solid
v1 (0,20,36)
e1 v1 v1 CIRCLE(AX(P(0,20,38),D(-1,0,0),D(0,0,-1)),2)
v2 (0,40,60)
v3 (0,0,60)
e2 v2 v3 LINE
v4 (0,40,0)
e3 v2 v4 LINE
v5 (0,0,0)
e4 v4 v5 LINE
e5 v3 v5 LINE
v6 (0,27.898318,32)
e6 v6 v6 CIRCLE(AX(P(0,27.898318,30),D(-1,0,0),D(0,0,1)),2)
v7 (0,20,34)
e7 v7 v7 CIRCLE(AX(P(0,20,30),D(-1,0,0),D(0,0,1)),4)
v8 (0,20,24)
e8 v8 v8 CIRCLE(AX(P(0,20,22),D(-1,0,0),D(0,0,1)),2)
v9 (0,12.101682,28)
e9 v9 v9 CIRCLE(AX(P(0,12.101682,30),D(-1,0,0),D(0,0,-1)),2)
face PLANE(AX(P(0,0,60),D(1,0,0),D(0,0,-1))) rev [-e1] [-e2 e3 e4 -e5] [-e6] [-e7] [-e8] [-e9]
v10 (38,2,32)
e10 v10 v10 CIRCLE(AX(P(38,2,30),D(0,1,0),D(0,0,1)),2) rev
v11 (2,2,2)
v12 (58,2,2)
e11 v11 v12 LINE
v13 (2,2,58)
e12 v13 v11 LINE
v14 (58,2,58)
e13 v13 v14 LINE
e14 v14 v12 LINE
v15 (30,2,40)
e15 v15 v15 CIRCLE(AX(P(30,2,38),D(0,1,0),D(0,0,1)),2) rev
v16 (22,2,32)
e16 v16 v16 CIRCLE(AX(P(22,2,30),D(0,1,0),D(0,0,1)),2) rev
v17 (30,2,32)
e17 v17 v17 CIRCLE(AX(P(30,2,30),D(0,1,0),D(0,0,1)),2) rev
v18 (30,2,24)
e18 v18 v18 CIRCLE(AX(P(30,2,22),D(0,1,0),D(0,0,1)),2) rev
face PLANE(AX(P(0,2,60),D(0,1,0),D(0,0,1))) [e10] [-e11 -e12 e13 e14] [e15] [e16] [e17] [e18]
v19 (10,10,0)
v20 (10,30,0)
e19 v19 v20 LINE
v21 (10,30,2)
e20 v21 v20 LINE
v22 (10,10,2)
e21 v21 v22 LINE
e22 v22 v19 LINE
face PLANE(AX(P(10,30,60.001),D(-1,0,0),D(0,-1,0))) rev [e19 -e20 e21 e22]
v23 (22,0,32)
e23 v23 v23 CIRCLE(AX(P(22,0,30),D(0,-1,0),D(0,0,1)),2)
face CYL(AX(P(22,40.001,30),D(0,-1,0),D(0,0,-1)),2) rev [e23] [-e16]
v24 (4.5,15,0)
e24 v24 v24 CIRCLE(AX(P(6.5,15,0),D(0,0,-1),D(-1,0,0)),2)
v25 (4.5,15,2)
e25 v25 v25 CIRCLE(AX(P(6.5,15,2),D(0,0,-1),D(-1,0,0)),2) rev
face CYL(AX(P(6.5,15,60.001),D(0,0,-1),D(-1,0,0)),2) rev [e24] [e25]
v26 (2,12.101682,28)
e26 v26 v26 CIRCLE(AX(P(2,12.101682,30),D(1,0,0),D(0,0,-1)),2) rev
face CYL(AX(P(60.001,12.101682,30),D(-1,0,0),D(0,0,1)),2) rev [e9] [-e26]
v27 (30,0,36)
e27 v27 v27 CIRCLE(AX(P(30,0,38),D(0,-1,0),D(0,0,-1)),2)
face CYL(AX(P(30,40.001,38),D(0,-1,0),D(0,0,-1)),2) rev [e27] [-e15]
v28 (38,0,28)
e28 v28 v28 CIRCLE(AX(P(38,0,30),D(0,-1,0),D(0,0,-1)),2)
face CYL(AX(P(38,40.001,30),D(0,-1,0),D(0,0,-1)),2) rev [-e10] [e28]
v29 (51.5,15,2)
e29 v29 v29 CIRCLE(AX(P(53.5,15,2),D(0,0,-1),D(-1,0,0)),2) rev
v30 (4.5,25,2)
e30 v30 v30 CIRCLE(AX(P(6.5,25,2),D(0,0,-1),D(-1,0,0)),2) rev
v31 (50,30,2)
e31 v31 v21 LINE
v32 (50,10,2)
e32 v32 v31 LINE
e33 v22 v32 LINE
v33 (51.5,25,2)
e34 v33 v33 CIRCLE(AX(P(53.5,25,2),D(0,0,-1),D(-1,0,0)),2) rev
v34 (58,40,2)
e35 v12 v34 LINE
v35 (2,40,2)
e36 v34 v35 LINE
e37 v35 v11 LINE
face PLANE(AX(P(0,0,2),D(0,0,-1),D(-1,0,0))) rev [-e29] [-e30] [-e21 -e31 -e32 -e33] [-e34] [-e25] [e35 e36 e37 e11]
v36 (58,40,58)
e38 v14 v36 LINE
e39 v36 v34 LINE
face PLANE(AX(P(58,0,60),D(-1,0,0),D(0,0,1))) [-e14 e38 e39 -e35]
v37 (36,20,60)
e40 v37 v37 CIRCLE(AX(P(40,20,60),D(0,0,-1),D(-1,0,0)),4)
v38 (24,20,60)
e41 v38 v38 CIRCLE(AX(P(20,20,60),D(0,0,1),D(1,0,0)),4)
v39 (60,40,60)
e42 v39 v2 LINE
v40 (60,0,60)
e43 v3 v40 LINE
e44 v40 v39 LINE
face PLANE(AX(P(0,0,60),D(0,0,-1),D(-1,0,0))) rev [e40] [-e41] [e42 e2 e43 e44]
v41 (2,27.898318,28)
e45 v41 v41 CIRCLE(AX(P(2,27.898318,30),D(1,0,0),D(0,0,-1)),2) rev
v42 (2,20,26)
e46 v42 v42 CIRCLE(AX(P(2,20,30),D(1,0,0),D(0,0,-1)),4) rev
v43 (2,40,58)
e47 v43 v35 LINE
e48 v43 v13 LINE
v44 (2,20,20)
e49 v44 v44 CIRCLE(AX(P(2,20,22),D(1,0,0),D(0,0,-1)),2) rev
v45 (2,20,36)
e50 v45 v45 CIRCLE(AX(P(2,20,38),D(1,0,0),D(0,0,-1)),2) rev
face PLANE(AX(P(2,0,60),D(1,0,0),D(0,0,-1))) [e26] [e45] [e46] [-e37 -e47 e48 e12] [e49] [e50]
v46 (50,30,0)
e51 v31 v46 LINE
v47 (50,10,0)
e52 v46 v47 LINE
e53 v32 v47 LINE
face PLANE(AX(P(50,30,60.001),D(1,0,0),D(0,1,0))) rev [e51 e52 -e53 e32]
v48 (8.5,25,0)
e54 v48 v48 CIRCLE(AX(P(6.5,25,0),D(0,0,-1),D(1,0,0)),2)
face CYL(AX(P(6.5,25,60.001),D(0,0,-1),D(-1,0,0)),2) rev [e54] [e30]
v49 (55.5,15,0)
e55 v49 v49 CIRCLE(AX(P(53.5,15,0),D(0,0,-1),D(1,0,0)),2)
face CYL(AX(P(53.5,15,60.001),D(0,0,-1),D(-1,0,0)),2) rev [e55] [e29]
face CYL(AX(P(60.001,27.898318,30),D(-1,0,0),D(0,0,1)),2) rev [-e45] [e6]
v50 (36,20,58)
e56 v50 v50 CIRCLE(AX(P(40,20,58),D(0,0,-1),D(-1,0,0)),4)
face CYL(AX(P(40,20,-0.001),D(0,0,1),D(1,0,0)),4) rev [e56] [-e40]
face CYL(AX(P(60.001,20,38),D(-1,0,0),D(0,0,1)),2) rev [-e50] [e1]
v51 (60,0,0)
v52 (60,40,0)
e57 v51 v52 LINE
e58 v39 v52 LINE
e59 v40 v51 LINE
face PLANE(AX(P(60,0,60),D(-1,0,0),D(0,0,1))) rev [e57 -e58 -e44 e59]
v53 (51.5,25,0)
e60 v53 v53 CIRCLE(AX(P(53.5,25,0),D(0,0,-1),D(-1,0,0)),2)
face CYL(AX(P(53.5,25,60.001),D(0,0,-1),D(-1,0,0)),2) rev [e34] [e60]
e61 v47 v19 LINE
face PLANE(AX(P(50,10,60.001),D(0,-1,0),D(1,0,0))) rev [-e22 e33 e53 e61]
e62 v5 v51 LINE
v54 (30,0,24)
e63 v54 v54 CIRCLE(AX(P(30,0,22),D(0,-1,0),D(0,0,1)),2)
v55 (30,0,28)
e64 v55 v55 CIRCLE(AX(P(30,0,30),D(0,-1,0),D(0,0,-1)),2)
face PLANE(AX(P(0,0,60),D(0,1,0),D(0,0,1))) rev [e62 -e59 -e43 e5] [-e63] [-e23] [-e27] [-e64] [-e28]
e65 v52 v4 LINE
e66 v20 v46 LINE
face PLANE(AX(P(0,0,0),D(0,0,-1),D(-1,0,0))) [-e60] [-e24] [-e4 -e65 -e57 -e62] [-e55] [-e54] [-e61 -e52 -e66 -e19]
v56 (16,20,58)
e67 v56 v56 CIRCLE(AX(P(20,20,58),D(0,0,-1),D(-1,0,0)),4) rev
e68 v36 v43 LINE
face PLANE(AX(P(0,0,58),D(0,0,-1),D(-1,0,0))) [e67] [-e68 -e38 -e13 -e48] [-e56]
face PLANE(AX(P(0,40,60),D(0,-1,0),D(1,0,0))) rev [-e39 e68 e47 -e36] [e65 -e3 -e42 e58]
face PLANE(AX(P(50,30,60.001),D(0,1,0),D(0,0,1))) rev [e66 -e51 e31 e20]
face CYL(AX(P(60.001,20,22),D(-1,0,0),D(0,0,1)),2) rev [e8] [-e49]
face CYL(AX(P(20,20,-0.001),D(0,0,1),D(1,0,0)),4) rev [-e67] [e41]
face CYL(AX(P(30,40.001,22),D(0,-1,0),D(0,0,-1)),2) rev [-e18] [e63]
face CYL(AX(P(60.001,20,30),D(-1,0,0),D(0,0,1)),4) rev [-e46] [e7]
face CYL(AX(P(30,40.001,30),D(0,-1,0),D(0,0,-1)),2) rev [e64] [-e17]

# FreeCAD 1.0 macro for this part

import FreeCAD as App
import Part
import Sketcher

V = App.Vector
Q = App.Units.Quantity


def faces_at(feature, points):
    """Names of the faces that lie closest to the given points."""
    faces = feature.Shape.Faces
    near = lambda p: min(range(len(faces)), key=lambda i: faces[i].distToShape(Part.Vertex(*p))[0])
    return sorted({f"Face{near(p) + 1}" for p in points})

doc = App.newDocument("Part")
body = doc.addObject("PartDesign::Body", "Body")

# Sketch on XY plane
sketch1 = doc.addObject("Sketcher::SketchObject", "Sketch")
body.addObject(sketch1)
sketch1.AttachmentSupport = (doc.XY_Plane, [""])
sketch1.MapMode = "FlatFace"
sketch1.addGeometry([
    Part.LineSegment(V(0, 40, 0), V(0, 0, 0)),
    Part.LineSegment(V(0, 0, 0), V(60, 0, 0)),
    Part.LineSegment(V(60, 0, 0), V(60, 40, 0)),
    Part.LineSegment(V(60, 40, 0), V(0, 40, 0)),
], False)
sketch1.addConstraint([
    Sketcher.Constraint("Coincident", 0, 2, 1, 1),
    Sketcher.Constraint("Coincident", 1, 2, 2, 1),
    Sketcher.Constraint("Coincident", 2, 2, 3, 1),
    Sketcher.Constraint("Coincident", 3, 2, 0, 1),
    Sketcher.Constraint("Vertical", 0),
    Sketcher.Constraint("Horizontal", 1),
    Sketcher.Constraint("Vertical", 2),
    Sketcher.Constraint("Horizontal", 3),
    Sketcher.Constraint("Coincident", 0, 2, -1, 1),
    Sketcher.Constraint("DistanceX", 1, 1, 1, 2, Q("60 mm")),
    Sketcher.Constraint("DistanceY", 0, 2, 0, 1, Q("40 mm")),
])
pad1 = doc.addObject("PartDesign::Pad", "Pad")
body.addObject(pad1)
pad1.Profile = sketch1
pad1.Length = 60
doc.recompute()

thickness = doc.addObject("PartDesign::Thickness", "Thickness")
body.addObject(thickness)
thickness.Base = (pad1, faces_at(pad1, [(30, 40, 30)]))
thickness.Value = 2
thickness.Reversed = True
thickness.Join = "Intersection"

# Sketch on XY plane
sketch2 = doc.addObject("Sketcher::SketchObject", "Sketch001")
body.addObject(sketch2)
sketch2.AttachmentSupport = (doc.XY_Plane, [""])
sketch2.MapMode = "FlatFace"
sketch2.addGeometry(Part.Circle(V(53.5, 25, 0), V(0, 0, 1), 2), False)
sketch2.addConstraint([
    Sketcher.Constraint("Diameter", 0, Q("4 mm")),
    Sketcher.Constraint("DistanceY", -1, 1, 0, 3, Q("25 mm")),
    Sketcher.Constraint("DistanceX", -1, 1, 0, 3, Q("53.5 mm")),
])
pocket1 = doc.addObject("PartDesign::Pocket", "Pocket")
body.addObject(pocket1)
pocket1.Profile = sketch2
pocket1.Type = "UpToFirst"
pocket1.Reversed = True

# Sketch on XY plane
sketch3 = doc.addObject("Sketcher::SketchObject", "Sketch002")
body.addObject(sketch3)
sketch3.AttachmentSupport = (doc.XY_Plane, [""])
sketch3.MapMode = "FlatFace"
sketch3.addGeometry(Part.Circle(V(53.5, 15, 0), V(0, 0, 1), 2), False)
sketch3.addConstraint([
    Sketcher.Constraint("Diameter", 0, Q("4 mm")),
    Sketcher.Constraint("DistanceY", -1, 1, 0, 3, Q("15 mm")),
    Sketcher.Constraint("DistanceX", -1, 1, 0, 3, Q("53.5 mm")),
])
pocket2 = doc.addObject("PartDesign::Pocket", "Pocket001")
body.addObject(pocket2)
pocket2.Profile = sketch3
pocket2.Type = "UpToFirst"
pocket2.Reversed = True

# Sketch on XY plane
sketch4 = doc.addObject("Sketcher::SketchObject", "Sketch003")
body.addObject(sketch4)
sketch4.AttachmentSupport = (doc.XY_Plane, [""])
sketch4.MapMode = "FlatFace"
sketch4.addGeometry(Part.Circle(V(6.5, 15, 0), V(0, 0, 1), 2), False)
sketch4.addConstraint([
    Sketcher.Constraint("Diameter", 0, Q("4 mm")),
    Sketcher.Constraint("DistanceY", -1, 1, 0, 3, Q("15 mm")),
    Sketcher.Constraint("DistanceX", -1, 1, 0, 3, Q("6.5 mm")),
])
pocket3 = doc.addObject("PartDesign::Pocket", "Pocket002")
body.addObject(pocket3)
pocket3.Profile = sketch4
pocket3.Type = "UpToFirst"
pocket3.Reversed = True

# Sketch on XY plane
sketch5 = doc.addObject("Sketcher::SketchObject", "Sketch004")
body.addObject(sketch5)
sketch5.AttachmentSupport = (doc.XY_Plane, [""])
sketch5.MapMode = "FlatFace"
sketch5.addGeometry(Part.Circle(V(6.5, 25, 0), V(0, 0, 1), 2), False)
sketch5.addConstraint([
    Sketcher.Constraint("Diameter", 0, Q("4 mm")),
    Sketcher.Constraint("DistanceY", -1, 1, 0, 3, Q("25 mm")),
    Sketcher.Constraint("DistanceX", -1, 1, 0, 3, Q("6.5 mm")),
])
pocket4 = doc.addObject("PartDesign::Pocket", "Pocket003")
body.addObject(pocket4)
pocket4.Profile = sketch5
pocket4.Type = "UpToFirst"
pocket4.Reversed = True

# Sketch on XY plane
sketch6 = doc.addObject("Sketcher::SketchObject", "Sketch005")
body.addObject(sketch6)
sketch6.AttachmentSupport = (doc.XY_Plane, [""])
sketch6.MapMode = "FlatFace"
sketch6.addGeometry([
    Part.LineSegment(V(50, 30, 0), V(50, 10, 0)),
    Part.LineSegment(V(50, 10, 0), V(10, 10, 0)),
    Part.LineSegment(V(10, 10, 0), V(10, 30, 0)),
    Part.LineSegment(V(10, 30, 0), V(50, 30, 0)),
], False)
sketch6.addConstraint([
    Sketcher.Constraint("Coincident", 0, 2, 1, 1),
    Sketcher.Constraint("Coincident", 1, 2, 2, 1),
    Sketcher.Constraint("Coincident", 2, 2, 3, 1),
    Sketcher.Constraint("Coincident", 3, 2, 0, 1),
    Sketcher.Constraint("Vertical", 0),
    Sketcher.Constraint("Horizontal", 1),
    Sketcher.Constraint("Vertical", 2),
    Sketcher.Constraint("Horizontal", 3),
    Sketcher.Constraint("DistanceX", 1, 2, 1, 1, Q("40 mm")),
    Sketcher.Constraint("DistanceY", 0, 2, 0, 1, Q("20 mm")),
    Sketcher.Constraint("DistanceX", -1, 1, 0, 2, Q("50 mm")),
    Sketcher.Constraint("DistanceY", -1, 1, 0, 2, Q("10 mm")),
])
pocket5 = doc.addObject("PartDesign::Pocket", "Pocket004")
body.addObject(pocket5)
pocket5.Profile = sketch6
pocket5.Type = "UpToFirst"
pocket5.Reversed = True

# Sketch on XZ plane
sketch7 = doc.addObject("Sketcher::SketchObject", "Sketch006")
body.addObject(sketch7)
sketch7.AttachmentSupport = (doc.XZ_Plane, [""])
sketch7.MapMode = "FlatFace"
sketch7.addGeometry(Part.Circle(V(30, 30, 0), V(0, 0, 1), 2), False)
sketch7.addConstraint([
    Sketcher.Constraint("Diameter", 0, Q("4 mm")),
    Sketcher.Constraint("DistanceX", -1, 1, 0, 3, Q("30 mm")),
    Sketcher.Constraint("DistanceY", -1, 1, 0, 3, Q("30 mm")),
])
pocket6 = doc.addObject("PartDesign::Pocket", "Pocket005")
body.addObject(pocket6)
pocket6.Profile = sketch7
pocket6.Type = "UpToFirst"

# Sketch on XZ plane
sketch8 = doc.addObject("Sketcher::SketchObject", "Sketch007")
body.addObject(sketch8)
sketch8.AttachmentSupport = (doc.XZ_Plane, [""])
sketch8.MapMode = "FlatFace"
sketch8.addGeometry(Part.Circle(V(38, 30, 0), V(0, 0, 1), 2), False)
sketch8.addConstraint([
    Sketcher.Constraint("Diameter", 0, Q("4 mm")),
    Sketcher.Constraint("DistanceX", -1, 1, 0, 3, Q("38 mm")),
    Sketcher.Constraint("DistanceY", -1, 1, 0, 3, Q("30 mm")),
])
pocket7 = doc.addObject("PartDesign::Pocket", "Pocket006")
body.addObject(pocket7)
pocket7.Profile = sketch8
pocket7.Type = "UpToFirst"

# Sketch on XZ plane
sketch9 = doc.addObject("Sketcher::SketchObject", "Sketch008")
body.addObject(sketch9)
sketch9.AttachmentSupport = (doc.XZ_Plane, [""])
sketch9.MapMode = "FlatFace"
sketch9.addGeometry(Part.Circle(V(30, 38, 0), V(0, 0, 1), 2), False)
sketch9.addConstraint([
    Sketcher.Constraint("Diameter", 0, Q("4 mm")),
    Sketcher.Constraint("DistanceX", -1, 1, 0, 3, Q("30 mm")),
    Sketcher.Constraint("DistanceY", -1, 1, 0, 3, Q("38 mm")),
])
pocket8 = doc.addObject("PartDesign::Pocket", "Pocket007")
body.addObject(pocket8)
pocket8.Profile = sketch9
pocket8.Type = "UpToFirst"

# Sketch on XZ plane
sketch10 = doc.addObject("Sketcher::SketchObject", "Sketch009")
body.addObject(sketch10)
sketch10.AttachmentSupport = (doc.XZ_Plane, [""])
sketch10.MapMode = "FlatFace"
sketch10.addGeometry(Part.Circle(V(30, 22, 0), V(0, 0, 1), 2), False)
sketch10.addConstraint([
    Sketcher.Constraint("Diameter", 0, Q("4 mm")),
    Sketcher.Constraint("DistanceX", -1, 1, 0, 3, Q("30 mm")),
    Sketcher.Constraint("DistanceY", -1, 1, 0, 3, Q("22 mm")),
])
pocket9 = doc.addObject("PartDesign::Pocket", "Pocket008")
body.addObject(pocket9)
pocket9.Profile = sketch10
pocket9.Type = "UpToFirst"

# Sketch on XZ plane
sketch11 = doc.addObject("Sketcher::SketchObject", "Sketch010")
body.addObject(sketch11)
sketch11.AttachmentSupport = (doc.XZ_Plane, [""])
sketch11.MapMode = "FlatFace"
sketch11.addGeometry(Part.Circle(V(22, 30, 0), V(0, 0, 1), 2), False)
sketch11.addConstraint([
    Sketcher.Constraint("Diameter", 0, Q("4 mm")),
    Sketcher.Constraint("DistanceX", -1, 1, 0, 3, Q("22 mm")),
    Sketcher.Constraint("DistanceY", -1, 1, 0, 3, Q("30 mm")),
])
pocket10 = doc.addObject("PartDesign::Pocket", "Pocket009")
body.addObject(pocket10)
pocket10.Profile = sketch11
pocket10.Type = "UpToFirst"

# Sketch on XY plane
sketch12 = doc.addObject("Sketcher::SketchObject", "Sketch011")
body.addObject(sketch12)
sketch12.AttachmentSupport = (doc.XY_Plane, [""])
sketch12.MapMode = "FlatFace"
sketch12.AttachmentOffset = App.Placement(V(0, 0, 60), App.Rotation())
sketch12.addGeometry(Part.Circle(V(20, 20, 0), V(0, 0, 1), 4), False)
sketch12.addConstraint([
    Sketcher.Constraint("Diameter", 0, Q("8 mm")),
    Sketcher.Constraint("DistanceX", -1, 1, 0, 3, Q("20 mm")),
    Sketcher.Constraint("DistanceY", -1, 1, 0, 3, Q("20 mm")),
])
pocket11 = doc.addObject("PartDesign::Pocket", "Pocket010")
body.addObject(pocket11)
pocket11.Profile = sketch12
pocket11.Type = "UpToFirst"

# Sketch on XY plane
sketch13 = doc.addObject("Sketcher::SketchObject", "Sketch012")
body.addObject(sketch13)
sketch13.AttachmentSupport = (doc.XY_Plane, [""])
sketch13.MapMode = "FlatFace"
sketch13.AttachmentOffset = App.Placement(V(0, 0, 60), App.Rotation())
sketch13.addGeometry(Part.Circle(V(40, 20, 0), V(0, 0, 1), 4), False)
sketch13.addConstraint([
    Sketcher.Constraint("Diameter", 0, Q("8 mm")),
    Sketcher.Constraint("DistanceX", -1, 1, 0, 3, Q("40 mm")),
    Sketcher.Constraint("DistanceY", -1, 1, 0, 3, Q("20 mm")),
])
pocket12 = doc.addObject("PartDesign::Pocket", "Pocket011")
body.addObject(pocket12)
pocket12.Profile = sketch13
pocket12.Type = "UpToFirst"

# Sketch on YZ plane
sketch14 = doc.addObject("Sketcher::SketchObject", "Sketch013")
body.addObject(sketch14)
sketch14.AttachmentSupport = (doc.YZ_Plane, [""])
sketch14.MapMode = "FlatFace"
sketch14.addGeometry(Part.Circle(V(20, 30, 0), V(0, 0, 1), 4), False)
sketch14.addConstraint([
    Sketcher.Constraint("Diameter", 0, Q("8 mm")),
    Sketcher.Constraint("DistanceX", -1, 1, 0, 3, Q("20 mm")),
    Sketcher.Constraint("DistanceY", -1, 1, 0, 3, Q("30 mm")),
])
pocket13 = doc.addObject("PartDesign::Pocket", "Pocket012")
body.addObject(pocket13)
pocket13.Profile = sketch14
pocket13.Type = "UpToFirst"
pocket13.Reversed = True

# Sketch on YZ plane
sketch15 = doc.addObject("Sketcher::SketchObject", "Sketch014")
body.addObject(sketch15)
sketch15.AttachmentSupport = (doc.YZ_Plane, [""])
sketch15.MapMode = "FlatFace"
sketch15.addGeometry(Part.Circle(V(20, 22, 0), V(0, 0, 1), 2), False)
sketch15.addConstraint([
    Sketcher.Constraint("Diameter", 0, Q("4 mm")),
    Sketcher.Constraint("DistanceX", -1, 1, 0, 3, Q("20 mm")),
    Sketcher.Constraint("DistanceY", -1, 1, 0, 3, Q("22 mm")),
])
pocket14 = doc.addObject("PartDesign::Pocket", "Pocket013")
body.addObject(pocket14)
pocket14.Profile = sketch15
pocket14.Type = "UpToFirst"
pocket14.Reversed = True

# Sketch on YZ plane
sketch16 = doc.addObject("Sketcher::SketchObject", "Sketch015")
body.addObject(sketch16)
sketch16.AttachmentSupport = (doc.YZ_Plane, [""])
sketch16.MapMode = "FlatFace"
sketch16.addGeometry(Part.Circle(V(20, 38, 0), V(0, 0, 1), 2), False)
sketch16.addConstraint([
    Sketcher.Constraint("Diameter", 0, Q("4 mm")),
    Sketcher.Constraint("DistanceX", -1, 1, 0, 3, Q("20 mm")),
    Sketcher.Constraint("DistanceY", -1, 1, 0, 3, Q("38 mm")),
])
pocket15 = doc.addObject("PartDesign::Pocket", "Pocket014")
body.addObject(pocket15)
pocket15.Profile = sketch16
pocket15.Type = "UpToFirst"
pocket15.Reversed = True

# Sketch on YZ plane
sketch17 = doc.addObject("Sketcher::SketchObject", "Sketch016")
body.addObject(sketch17)
sketch17.AttachmentSupport = (doc.YZ_Plane, [""])
sketch17.MapMode = "FlatFace"
sketch17.addGeometry(Part.Circle(V(27.898318, 30, 0), V(0, 0, 1), 2), False)
sketch17.addConstraint([
    Sketcher.Constraint("Diameter", 0, Q("4 mm")),
    Sketcher.Constraint("DistanceY", -1, 1, 0, 3, Q("30 mm")),
    Sketcher.Constraint("DistanceX", -1, 1, 0, 3, Q("27.898318 mm")),
])
pocket16 = doc.addObject("PartDesign::Pocket", "Pocket015")
body.addObject(pocket16)
pocket16.Profile = sketch17
pocket16.Type = "UpToFirst"
pocket16.Reversed = True

# Sketch on YZ plane
sketch18 = doc.addObject("Sketcher::SketchObject", "Sketch017")
body.addObject(sketch18)
sketch18.AttachmentSupport = (doc.YZ_Plane, [""])
sketch18.MapMode = "FlatFace"
sketch18.addGeometry(Part.Circle(V(12.101682, 30, 0), V(0, 0, 1), 2), False)
sketch18.addConstraint([
    Sketcher.Constraint("Diameter", 0, Q("4 mm")),
    Sketcher.Constraint("DistanceY", -1, 1, 0, 3, Q("30 mm")),
    Sketcher.Constraint("DistanceX", -1, 1, 0, 3, Q("12.101682 mm")),
])
pocket17 = doc.addObject("PartDesign::Pocket", "Pocket016")
body.addObject(pocket17)
pocket17.Profile = sketch18
pocket17.Type = "UpToFirst"
pocket17.Reversed = True

doc.recompute()
